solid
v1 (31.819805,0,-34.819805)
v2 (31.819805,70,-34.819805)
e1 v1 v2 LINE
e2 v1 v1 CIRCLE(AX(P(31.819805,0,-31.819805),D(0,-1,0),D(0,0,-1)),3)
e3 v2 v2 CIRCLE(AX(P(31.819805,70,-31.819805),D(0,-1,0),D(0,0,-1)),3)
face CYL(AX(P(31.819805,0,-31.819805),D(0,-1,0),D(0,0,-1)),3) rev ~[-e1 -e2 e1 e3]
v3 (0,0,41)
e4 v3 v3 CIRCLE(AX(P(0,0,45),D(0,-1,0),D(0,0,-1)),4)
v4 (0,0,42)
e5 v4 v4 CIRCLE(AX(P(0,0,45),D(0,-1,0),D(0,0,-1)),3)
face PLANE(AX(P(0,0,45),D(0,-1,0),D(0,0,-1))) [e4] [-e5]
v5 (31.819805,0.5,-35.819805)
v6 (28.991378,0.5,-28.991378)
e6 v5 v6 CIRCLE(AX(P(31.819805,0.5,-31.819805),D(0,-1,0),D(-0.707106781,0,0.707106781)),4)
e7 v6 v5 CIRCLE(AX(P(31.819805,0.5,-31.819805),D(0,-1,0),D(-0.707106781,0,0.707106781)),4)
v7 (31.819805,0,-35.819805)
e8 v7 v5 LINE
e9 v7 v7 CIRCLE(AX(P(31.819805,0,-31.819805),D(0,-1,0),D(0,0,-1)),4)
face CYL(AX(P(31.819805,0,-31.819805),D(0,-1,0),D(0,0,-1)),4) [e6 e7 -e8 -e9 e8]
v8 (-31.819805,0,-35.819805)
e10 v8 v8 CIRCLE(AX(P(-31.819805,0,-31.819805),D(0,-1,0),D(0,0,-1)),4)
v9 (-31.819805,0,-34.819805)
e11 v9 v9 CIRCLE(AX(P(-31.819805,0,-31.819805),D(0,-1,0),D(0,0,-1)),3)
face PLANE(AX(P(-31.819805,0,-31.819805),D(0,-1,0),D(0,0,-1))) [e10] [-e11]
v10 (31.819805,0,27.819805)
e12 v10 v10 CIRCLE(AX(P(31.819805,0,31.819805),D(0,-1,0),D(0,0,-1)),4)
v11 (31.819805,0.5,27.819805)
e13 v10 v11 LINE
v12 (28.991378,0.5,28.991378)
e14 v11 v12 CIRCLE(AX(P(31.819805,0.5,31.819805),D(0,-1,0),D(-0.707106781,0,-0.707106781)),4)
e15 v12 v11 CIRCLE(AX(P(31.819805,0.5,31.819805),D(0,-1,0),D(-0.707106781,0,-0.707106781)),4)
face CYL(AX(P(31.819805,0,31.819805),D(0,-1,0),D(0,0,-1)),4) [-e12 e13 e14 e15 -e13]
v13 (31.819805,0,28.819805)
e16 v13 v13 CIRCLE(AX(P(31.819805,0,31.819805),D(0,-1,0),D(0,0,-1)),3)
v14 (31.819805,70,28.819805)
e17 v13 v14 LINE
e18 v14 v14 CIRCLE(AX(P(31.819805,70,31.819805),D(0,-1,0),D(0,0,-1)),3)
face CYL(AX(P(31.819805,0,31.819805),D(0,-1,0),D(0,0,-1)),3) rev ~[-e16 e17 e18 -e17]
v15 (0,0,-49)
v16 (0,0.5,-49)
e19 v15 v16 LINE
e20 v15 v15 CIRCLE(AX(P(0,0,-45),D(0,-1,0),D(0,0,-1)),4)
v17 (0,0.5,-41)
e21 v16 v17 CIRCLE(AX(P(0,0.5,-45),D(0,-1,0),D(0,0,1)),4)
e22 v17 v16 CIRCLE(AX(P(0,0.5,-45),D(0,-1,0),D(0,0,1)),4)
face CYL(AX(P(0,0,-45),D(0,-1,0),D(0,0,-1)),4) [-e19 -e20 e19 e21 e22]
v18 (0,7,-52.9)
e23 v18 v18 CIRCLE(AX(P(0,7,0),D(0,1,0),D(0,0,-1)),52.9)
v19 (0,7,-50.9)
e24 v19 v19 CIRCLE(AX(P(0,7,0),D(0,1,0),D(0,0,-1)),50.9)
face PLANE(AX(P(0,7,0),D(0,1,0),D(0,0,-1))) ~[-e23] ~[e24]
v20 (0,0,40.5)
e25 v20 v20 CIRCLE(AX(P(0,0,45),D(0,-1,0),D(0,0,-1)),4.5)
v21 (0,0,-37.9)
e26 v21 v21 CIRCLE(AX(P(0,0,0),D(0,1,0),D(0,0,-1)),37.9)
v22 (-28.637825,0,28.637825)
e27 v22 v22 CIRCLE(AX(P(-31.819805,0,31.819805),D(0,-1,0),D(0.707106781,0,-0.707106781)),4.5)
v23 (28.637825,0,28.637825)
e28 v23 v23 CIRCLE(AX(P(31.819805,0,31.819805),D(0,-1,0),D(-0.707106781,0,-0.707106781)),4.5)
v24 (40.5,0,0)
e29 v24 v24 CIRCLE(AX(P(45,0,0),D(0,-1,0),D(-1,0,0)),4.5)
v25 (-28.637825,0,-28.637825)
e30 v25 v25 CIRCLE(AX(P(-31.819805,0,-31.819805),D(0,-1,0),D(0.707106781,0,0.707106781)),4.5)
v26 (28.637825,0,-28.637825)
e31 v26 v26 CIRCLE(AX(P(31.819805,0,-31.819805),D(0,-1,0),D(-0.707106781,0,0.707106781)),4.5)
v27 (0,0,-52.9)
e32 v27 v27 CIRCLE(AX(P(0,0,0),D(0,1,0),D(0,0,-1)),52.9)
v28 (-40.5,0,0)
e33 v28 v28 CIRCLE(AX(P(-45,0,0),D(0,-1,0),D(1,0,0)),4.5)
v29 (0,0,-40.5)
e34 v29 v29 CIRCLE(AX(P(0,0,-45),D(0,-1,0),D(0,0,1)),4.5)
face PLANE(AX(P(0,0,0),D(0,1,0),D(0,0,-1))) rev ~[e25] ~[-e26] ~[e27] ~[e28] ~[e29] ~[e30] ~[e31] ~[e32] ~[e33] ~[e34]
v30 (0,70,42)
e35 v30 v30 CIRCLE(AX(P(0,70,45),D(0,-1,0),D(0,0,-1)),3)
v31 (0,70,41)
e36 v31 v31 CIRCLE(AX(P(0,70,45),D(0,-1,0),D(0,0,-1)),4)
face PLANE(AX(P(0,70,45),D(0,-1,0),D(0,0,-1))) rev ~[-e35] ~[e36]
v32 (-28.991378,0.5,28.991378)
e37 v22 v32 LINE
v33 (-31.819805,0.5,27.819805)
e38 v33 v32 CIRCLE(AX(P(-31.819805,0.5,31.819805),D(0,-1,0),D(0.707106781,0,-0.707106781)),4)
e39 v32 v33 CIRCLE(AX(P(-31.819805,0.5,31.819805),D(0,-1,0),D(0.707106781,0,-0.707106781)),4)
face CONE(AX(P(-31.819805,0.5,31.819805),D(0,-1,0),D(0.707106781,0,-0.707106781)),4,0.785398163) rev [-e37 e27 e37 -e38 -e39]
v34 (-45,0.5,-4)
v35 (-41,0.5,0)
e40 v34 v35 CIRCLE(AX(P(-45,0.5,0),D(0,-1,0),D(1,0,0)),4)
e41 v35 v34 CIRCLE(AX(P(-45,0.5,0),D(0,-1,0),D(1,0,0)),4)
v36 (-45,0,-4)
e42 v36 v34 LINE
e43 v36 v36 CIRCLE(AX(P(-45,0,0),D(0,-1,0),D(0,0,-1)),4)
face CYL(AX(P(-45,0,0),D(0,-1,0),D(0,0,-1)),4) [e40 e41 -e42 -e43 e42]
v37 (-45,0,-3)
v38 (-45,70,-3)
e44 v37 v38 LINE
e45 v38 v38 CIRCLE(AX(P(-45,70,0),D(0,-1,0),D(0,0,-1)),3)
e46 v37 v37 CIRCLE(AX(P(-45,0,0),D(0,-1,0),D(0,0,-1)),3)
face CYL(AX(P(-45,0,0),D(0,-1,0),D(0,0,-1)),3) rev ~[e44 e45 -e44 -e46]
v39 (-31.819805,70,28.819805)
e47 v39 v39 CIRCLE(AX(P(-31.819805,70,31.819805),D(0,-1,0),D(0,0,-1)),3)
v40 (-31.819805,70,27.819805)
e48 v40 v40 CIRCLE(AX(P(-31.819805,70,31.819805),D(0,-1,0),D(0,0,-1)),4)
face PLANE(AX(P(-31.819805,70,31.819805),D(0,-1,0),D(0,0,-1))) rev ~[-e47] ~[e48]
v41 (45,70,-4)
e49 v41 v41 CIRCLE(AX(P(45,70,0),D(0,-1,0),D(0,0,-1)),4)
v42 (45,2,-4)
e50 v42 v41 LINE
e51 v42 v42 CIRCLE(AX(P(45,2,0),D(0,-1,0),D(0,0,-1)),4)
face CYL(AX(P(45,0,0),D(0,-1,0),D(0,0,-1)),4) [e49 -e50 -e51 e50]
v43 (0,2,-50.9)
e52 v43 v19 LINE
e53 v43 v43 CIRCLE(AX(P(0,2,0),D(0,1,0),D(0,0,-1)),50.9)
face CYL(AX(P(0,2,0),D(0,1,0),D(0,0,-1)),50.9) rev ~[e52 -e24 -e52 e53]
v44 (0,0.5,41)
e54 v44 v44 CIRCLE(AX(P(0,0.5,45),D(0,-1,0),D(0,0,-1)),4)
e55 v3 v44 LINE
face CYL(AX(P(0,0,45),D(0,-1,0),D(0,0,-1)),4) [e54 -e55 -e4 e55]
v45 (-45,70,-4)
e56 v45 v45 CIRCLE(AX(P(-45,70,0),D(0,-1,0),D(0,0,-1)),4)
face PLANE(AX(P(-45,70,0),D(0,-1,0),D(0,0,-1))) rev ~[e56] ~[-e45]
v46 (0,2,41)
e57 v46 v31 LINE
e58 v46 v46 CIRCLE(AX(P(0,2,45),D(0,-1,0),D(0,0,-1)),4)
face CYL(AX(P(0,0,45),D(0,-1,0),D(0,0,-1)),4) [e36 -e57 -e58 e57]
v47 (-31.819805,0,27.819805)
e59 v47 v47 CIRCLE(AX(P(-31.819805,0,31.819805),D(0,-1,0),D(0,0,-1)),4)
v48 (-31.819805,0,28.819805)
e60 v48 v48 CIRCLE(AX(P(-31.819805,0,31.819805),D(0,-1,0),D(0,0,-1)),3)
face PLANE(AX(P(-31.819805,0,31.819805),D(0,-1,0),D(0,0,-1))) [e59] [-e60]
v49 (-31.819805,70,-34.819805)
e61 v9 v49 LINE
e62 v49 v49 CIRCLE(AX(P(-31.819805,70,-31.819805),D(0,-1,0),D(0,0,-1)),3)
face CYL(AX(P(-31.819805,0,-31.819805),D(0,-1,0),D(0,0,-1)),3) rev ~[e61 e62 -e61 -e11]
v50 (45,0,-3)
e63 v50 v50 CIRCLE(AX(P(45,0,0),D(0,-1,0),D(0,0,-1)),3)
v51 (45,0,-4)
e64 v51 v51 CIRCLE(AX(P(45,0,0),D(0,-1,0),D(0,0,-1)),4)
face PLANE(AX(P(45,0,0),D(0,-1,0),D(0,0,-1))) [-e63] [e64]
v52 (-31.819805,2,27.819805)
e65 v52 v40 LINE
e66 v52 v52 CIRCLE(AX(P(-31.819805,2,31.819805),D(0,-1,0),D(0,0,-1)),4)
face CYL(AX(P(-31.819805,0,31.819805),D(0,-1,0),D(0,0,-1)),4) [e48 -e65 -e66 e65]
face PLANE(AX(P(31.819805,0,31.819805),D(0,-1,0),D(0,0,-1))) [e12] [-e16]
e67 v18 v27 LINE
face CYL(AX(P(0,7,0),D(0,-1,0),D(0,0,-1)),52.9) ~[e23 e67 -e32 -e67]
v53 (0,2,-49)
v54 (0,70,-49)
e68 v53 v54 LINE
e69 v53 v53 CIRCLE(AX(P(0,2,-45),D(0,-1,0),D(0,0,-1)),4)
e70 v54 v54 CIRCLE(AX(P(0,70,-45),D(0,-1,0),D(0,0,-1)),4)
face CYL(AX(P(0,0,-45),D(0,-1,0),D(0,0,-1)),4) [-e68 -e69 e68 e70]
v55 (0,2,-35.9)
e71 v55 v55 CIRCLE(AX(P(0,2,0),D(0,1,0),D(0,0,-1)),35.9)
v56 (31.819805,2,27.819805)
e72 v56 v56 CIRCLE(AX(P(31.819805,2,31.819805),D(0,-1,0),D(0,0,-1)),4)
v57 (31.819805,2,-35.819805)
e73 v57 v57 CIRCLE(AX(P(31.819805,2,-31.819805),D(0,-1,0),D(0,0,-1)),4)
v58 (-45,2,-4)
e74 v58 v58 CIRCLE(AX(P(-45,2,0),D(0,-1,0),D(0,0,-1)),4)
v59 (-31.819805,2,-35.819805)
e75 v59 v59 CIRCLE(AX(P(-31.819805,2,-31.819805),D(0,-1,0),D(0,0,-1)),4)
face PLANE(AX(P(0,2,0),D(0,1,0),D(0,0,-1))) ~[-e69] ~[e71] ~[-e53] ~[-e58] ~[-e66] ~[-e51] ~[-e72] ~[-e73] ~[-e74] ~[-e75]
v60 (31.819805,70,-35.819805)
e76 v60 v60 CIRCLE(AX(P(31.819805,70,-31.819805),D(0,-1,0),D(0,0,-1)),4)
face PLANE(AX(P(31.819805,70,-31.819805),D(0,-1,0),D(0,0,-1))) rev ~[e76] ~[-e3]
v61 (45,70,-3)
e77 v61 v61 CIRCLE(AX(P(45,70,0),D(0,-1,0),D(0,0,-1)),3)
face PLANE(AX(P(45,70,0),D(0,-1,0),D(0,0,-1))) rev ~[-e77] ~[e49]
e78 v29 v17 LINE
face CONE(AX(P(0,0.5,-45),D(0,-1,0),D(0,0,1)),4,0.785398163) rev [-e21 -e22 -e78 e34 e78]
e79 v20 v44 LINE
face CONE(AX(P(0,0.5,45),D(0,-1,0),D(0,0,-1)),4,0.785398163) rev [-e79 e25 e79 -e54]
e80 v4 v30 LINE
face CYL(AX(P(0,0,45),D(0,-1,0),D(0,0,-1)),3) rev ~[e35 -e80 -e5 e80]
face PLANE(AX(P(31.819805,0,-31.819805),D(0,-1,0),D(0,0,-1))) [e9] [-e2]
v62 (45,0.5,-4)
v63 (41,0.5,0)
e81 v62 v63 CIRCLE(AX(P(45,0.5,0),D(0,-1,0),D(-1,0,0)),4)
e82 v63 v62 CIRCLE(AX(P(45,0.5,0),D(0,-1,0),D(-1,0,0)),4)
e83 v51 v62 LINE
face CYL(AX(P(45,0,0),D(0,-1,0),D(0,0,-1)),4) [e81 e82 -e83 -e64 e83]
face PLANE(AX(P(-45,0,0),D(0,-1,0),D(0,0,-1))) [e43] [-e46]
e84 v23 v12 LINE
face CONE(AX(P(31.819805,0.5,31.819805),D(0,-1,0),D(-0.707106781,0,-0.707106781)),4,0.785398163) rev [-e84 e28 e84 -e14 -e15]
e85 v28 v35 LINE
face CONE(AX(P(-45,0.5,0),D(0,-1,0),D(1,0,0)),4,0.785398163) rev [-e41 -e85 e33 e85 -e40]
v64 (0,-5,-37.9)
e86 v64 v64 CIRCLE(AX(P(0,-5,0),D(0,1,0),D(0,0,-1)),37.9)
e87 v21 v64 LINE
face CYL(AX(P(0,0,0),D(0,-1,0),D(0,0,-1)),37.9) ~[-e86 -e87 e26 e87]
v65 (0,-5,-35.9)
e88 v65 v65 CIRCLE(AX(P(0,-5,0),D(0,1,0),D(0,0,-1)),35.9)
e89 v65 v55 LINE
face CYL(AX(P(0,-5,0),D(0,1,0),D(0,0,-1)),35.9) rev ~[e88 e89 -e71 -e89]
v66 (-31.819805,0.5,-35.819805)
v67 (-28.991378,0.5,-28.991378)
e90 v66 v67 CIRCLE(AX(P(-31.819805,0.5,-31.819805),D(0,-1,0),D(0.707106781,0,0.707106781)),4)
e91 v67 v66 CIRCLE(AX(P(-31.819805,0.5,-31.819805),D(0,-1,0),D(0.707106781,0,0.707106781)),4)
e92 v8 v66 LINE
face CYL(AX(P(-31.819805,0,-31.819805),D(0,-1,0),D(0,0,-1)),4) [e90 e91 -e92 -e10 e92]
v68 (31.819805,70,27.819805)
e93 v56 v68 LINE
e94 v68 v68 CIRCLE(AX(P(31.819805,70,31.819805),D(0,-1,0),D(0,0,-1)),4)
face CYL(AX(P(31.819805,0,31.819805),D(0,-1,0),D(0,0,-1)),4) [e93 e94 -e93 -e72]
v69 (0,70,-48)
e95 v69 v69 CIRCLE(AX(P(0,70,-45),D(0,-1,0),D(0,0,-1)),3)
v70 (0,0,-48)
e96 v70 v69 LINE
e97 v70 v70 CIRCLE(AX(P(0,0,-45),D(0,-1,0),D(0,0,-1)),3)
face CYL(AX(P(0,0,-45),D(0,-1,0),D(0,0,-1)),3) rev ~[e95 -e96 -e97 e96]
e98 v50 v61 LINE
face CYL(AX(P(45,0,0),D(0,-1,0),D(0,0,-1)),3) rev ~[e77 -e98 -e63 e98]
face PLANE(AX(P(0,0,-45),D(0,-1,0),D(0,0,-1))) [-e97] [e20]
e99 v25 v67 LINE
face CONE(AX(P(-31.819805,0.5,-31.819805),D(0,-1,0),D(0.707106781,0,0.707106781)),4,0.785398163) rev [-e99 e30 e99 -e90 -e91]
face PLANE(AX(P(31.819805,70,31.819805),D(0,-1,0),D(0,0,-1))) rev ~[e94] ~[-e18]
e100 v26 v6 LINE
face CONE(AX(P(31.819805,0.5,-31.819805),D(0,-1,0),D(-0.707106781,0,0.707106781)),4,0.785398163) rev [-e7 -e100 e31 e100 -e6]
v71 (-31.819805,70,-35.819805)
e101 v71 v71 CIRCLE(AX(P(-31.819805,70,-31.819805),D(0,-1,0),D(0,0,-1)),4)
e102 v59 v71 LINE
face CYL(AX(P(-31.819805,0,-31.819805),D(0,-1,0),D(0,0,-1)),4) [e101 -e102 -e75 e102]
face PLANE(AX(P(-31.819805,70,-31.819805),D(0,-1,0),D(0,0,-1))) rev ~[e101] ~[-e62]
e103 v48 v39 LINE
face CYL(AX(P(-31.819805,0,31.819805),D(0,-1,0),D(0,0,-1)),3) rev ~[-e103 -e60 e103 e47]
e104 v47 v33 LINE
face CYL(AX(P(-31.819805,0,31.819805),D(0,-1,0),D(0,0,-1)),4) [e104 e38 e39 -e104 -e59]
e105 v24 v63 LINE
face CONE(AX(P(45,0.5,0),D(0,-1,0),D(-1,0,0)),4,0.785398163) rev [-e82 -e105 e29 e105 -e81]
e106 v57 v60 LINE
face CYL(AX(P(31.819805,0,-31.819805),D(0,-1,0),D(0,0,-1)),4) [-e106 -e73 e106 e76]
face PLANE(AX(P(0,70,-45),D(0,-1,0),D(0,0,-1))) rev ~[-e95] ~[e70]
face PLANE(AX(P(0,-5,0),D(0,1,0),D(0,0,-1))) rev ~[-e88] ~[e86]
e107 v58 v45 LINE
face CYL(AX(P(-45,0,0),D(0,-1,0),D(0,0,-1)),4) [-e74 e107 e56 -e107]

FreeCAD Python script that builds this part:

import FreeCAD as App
import Part
import Sketcher

V = App.Vector


def edges_at(feature, points):
    """Names of the edges that pass closest to the given points."""
    edges = feature.Shape.Edges
    near = lambda p: min(range(len(edges)), key=lambda i: edges[i].distToShape(Part.Vertex(*p))[0])
    return sorted({f"Edge{near(p) + 1}" for p in points})


def add_polygon(sketch, points):
    """Adds a closed chain of lines whose ends are joined by coincident constraints."""
    first, n = sketch.GeometryCount, len(points)
    for a, b in zip(points, points[1:] + points[:1]):
        sketch.addGeometry(Part.LineSegment(App.Vector(*a, 0), App.Vector(*b, 0)), False)
    for i in range(n):
        sketch.addConstraint(Sketcher.Constraint("Coincident", first + i, 2, first + (i + 1) % n, 1))

doc = App.newDocument("Part")
params = doc.addObject("Spreadsheet::Sheet", "Params")
for row, (alias, value) in enumerate([
    ("sketch1_width", "15 mm"),
    ("sketch1_width2", "2 mm"),
    ("sketch1_height", "7 mm"),
    ("sketch1_height2", "5 mm"),
    ("revolution_angle", "360 deg"),
    ("sketch2_diameter", "8 mm"),
    ("pocket1_length", "10 mm"),
    ("chamfer_size", "0.5 mm"),
    ("chamfer2_size", "0.5 mm"),
    ("sketch3_diameter", "8 mm"),
    ("sketch3_diameter2", "6 mm"),
    ("pad1_length", "70 mm"),
], start=1):
    params.set(f"A{row}", alias)
    params.set(f"B{row}", "=" + value)
    params.setAlias(f"B{row}", alias)

body = doc.addObject("PartDesign::Body", "Body")

# Sketch on XY plane
sketch1 = doc.addObject("Sketcher::SketchObject", "Sketch")
body.addObject(sketch1)
sketch1.AttachmentSupport = (doc.XY_Plane, [""])
sketch1.MapMode = "FlatFace"
add_polygon(sketch1, [(-52.9, 7), (-52.9, 0), (-37.9, 0), (-37.9, -5), (-35.9, -5), (-35.9, 2), (-50.9, 2), (-50.9, 7)])  # lines 0-7
sketch1.addConstraint(Sketcher.Constraint("Vertical", 0))
sketch1.addConstraint(Sketcher.Constraint("Horizontal", 1))
sketch1.addConstraint(Sketcher.Constraint("Vertical", 2))
sketch1.addConstraint(Sketcher.Constraint("Horizontal", 3))
sketch1.addConstraint(Sketcher.Constraint("Vertical", 4))
sketch1.addConstraint(Sketcher.Constraint("Horizontal", 5))
sketch1.addConstraint(Sketcher.Constraint("Vertical", 6))
sketch1.addConstraint(Sketcher.Constraint("Horizontal", 7))
sketch1.addConstraint(Sketcher.Constraint("PointOnObject", 0, 2, -1))
sketch1.addConstraint(Sketcher.Constraint("Equal", 1, 5))
sketch1.addConstraint(Sketcher.Constraint("Equal", 0, 4))
sketch1.addConstraint(Sketcher.Constraint("DistanceX", 1, 1, 1, 2, 15.0))
sketch1.addConstraint(Sketcher.Constraint("DistanceX", 3, 1, 3, 2, 2.0))
sketch1.addConstraint(Sketcher.Constraint("DistanceY", 0, 2, 0, 1, 7.0))
sketch1.addConstraint(Sketcher.Constraint("DistanceY", 2, 2, 2, 1, 5.0))
sketch1.addConstraint(Sketcher.Constraint("DistanceX", 0, 2, -1, 1, 52.9))
sketch1.setExpression("Constraints[19]", "Params.sketch1_width")
sketch1.setExpression("Constraints[20]", "Params.sketch1_width2")
sketch1.setExpression("Constraints[21]", "Params.sketch1_height")
sketch1.setExpression("Constraints[22]", "Params.sketch1_height2")
revolution = doc.addObject("PartDesign::Revolution", "Revolution")
body.addObject(revolution)
revolution.Profile = sketch1
revolution.ReferenceAxis = (sketch1, ["V_Axis"])
revolution.setExpression("Angle", "Params.revolution_angle")

# Sketch on XZ plane
sketch2 = doc.addObject("Sketcher::SketchObject", "Sketch001")
body.addObject(sketch2)
sketch2.AttachmentSupport = (doc.XZ_Plane, [""])
sketch2.MapMode = "FlatFace"
sketch2.addGeometry(Part.Circle(V(0, 45, 0), V(0, 0, 1), 4), False)
sketch2.addConstraint(Sketcher.Constraint("PointOnObject", 0, 3, -2))
sketch2.addConstraint(Sketcher.Constraint("Diameter", 0, 8.0))
sketch2.addConstraint(Sketcher.Constraint("DistanceY", -1, 1, 0, 3, 45.0))
sketch2.setExpression("Constraints[1]", "Params.sketch2_diameter")
pocket1 = doc.addObject("PartDesign::Pocket", "Pocket")
body.addObject(pocket1)
pocket1.Profile = sketch2
pocket1.setExpression("Length", "Params.pocket1_length")
doc.recompute()

chamfer = doc.addObject("PartDesign::Chamfer", "Chamfer")
body.addObject(chamfer)
chamfer.Base = (pocket1, edges_at(pocket1, [(0, 0, 49)]))
chamfer.setExpression("Size", "Params.chamfer_size")
doc.recompute()

polarpattern = doc.addObject("PartDesign::PolarPattern", "PolarPattern")
body.addObject(polarpattern)
polarpattern.Originals = [pocket1]
polarpattern.Axis = (doc.Y_Axis, [""])
polarpattern.Angle = 360
polarpattern.Occurrences = 8
body.Tip = polarpattern
doc.recompute()

chamfer2 = doc.addObject("PartDesign::Chamfer", "Chamfer001")
body.addObject(chamfer2)
chamfer2.Base = (polarpattern, edges_at(polarpattern, [
    (34.648, 0, 34.648),
    (49, 0, 0),
    (34.648, 0, -34.648),
    (0, 0, -49),
    (-34.648, 0, -34.648),
    (-49, 0, 0),
    (-34.648, 0, 34.648),
]))
chamfer2.setExpression("Size", "Params.chamfer2_size")

# Sketch on XZ plane
sketch3 = doc.addObject("Sketcher::SketchObject", "Sketch002")
body.addObject(sketch3)
sketch3.AttachmentSupport = (doc.XZ_Plane, [""])
sketch3.MapMode = "FlatFace"
sketch3.addGeometry(Part.Circle(V(0, 45, 0), V(0, 0, 1), 4), False)
sketch3.addGeometry(Part.Circle(V(0, 45, 0), V(0, 0, 1), 3), False)
sketch3.addGeometry(Part.Circle(V(31.8, 31.8, 0), V(0, 0, 1), 4), False)
sketch3.addGeometry(Part.Circle(V(31.8, 31.8, 0), V(0, 0, 1), 3), False)
sketch3.addGeometry(Part.Circle(V(45, 0, 0), V(0, 0, 1), 4), False)
sketch3.addGeometry(Part.Circle(V(45, 0, 0), V(0, 0, 1), 3), False)
sketch3.addGeometry(Part.Circle(V(31.8, -31.8, 0), V(0, 0, 1), 4), False)
sketch3.addGeometry(Part.Circle(V(31.8, -31.8, 0), V(0, 0, 1), 3), False)
sketch3.addGeometry(Part.Circle(V(0, -45, 0), V(0, 0, 1), 4), False)
sketch3.addGeometry(Part.Circle(V(0, -45, 0), V(0, 0, 1), 3), False)
sketch3.addGeometry(Part.Circle(V(-31.8, -31.8, 0), V(0, 0, 1), 4), False)
sketch3.addGeometry(Part.Circle(V(-31.8, -31.8, 0), V(0, 0, 1), 3), False)
sketch3.addGeometry(Part.Circle(V(-45, 0, 0), V(0, 0, 1), 4), False)
sketch3.addGeometry(Part.Circle(V(-45, 0, 0), V(0, 0, 1), 3), False)
sketch3.addGeometry(Part.Circle(V(-31.8, 31.8, 0), V(0, 0, 1), 4), False)
sketch3.addGeometry(Part.Circle(V(-31.8, 31.8, 0), V(0, 0, 1), 3), False)
sketch3.addConstraint(Sketcher.Constraint("Coincident", 1, 3, 0, 3))
sketch3.addConstraint(Sketcher.Constraint("Coincident", 3, 3, 2, 3))
sketch3.addConstraint(Sketcher.Constraint("Coincident", 5, 3, 4, 3))
sketch3.addConstraint(Sketcher.Constraint("Coincident", 7, 3, 6, 3))
sketch3.addConstraint(Sketcher.Constraint("Coincident", 9, 3, 8, 3))
sketch3.addConstraint(Sketcher.Constraint("Coincident", 11, 3, 10, 3))
sketch3.addConstraint(Sketcher.Constraint("Coincident", 13, 3, 12, 3))
sketch3.addConstraint(Sketcher.Constraint("Coincident", 15, 3, 14, 3))
sketch3.addConstraint(Sketcher.Constraint("Equal", 0, 2))
sketch3.addConstraint(Sketcher.Constraint("Equal", 1, 3))
sketch3.addConstraint(Sketcher.Constraint("Equal", 2, 4))
sketch3.addConstraint(Sketcher.Constraint("Equal", 3, 5))
sketch3.addConstraint(Sketcher.Constraint("Equal", 4, 6))
sketch3.addConstraint(Sketcher.Constraint("Equal", 5, 7))
sketch3.addConstraint(Sketcher.Constraint("Equal", 6, 8))
sketch3.addConstraint(Sketcher.Constraint("Equal", 7, 9))
sketch3.addConstraint(Sketcher.Constraint("Equal", 8, 10))
sketch3.addConstraint(Sketcher.Constraint("Equal", 9, 11))
sketch3.addConstraint(Sketcher.Constraint("Equal", 10, 12))
sketch3.addConstraint(Sketcher.Constraint("Equal", 11, 13))
sketch3.addConstraint(Sketcher.Constraint("Equal", 12, 14))
sketch3.addConstraint(Sketcher.Constraint("Equal", 13, 15))
sketch3.addConstraint(Sketcher.Constraint("Symmetric", 0, 3, 8, 3, -1, 1))
sketch3.addConstraint(Sketcher.Constraint("Symmetric", 2, 3, 10, 3, -1, 1))
sketch3.addConstraint(Sketcher.Constraint("Symmetric", 4, 3, 12, 3, -1, 1))
sketch3.addConstraint(Sketcher.Constraint("Symmetric", 6, 3, 14, 3, -1, 1))
sketch3.addConstraint(Sketcher.Constraint("Symmetric", 6, 3, 10, 3, -2))
sketch3.addConstraint(Sketcher.Constraint("PointOnObject", 0, 3, -2))
sketch3.addConstraint(Sketcher.Constraint("PointOnObject", 4, 3, -1))
sketch3.addConstraint(Sketcher.Constraint("Diameter", 0, 8.0))
sketch3.addConstraint(Sketcher.Constraint("Diameter", 1, 6.0))
sketch3.addConstraint(Sketcher.Constraint("DistanceY", -1, 1, 0, 3, 45.0))
sketch3.addConstraint(Sketcher.Constraint("DistanceX", -1, 1, 4, 3, 45.0))
sketch3.addConstraint(Sketcher.Constraint("DistanceY", 6, 3, 2, 3, 63.63961))
sketch3.addConstraint(Sketcher.Constraint("DistanceX", 10, 3, 6, 3, 63.63961))
sketch3.setExpression("Constraints[29]", "Params.sketch3_diameter")
sketch3.setExpression("Constraints[30]", "Params.sketch3_diameter2")
pad1 = doc.addObject("PartDesign::Pad", "Pad")
body.addObject(pad1)
pad1.Profile = sketch3
pad1.setExpression("Length", "Params.pad1_length")
pad1.Reversed = True

doc.recompute()
